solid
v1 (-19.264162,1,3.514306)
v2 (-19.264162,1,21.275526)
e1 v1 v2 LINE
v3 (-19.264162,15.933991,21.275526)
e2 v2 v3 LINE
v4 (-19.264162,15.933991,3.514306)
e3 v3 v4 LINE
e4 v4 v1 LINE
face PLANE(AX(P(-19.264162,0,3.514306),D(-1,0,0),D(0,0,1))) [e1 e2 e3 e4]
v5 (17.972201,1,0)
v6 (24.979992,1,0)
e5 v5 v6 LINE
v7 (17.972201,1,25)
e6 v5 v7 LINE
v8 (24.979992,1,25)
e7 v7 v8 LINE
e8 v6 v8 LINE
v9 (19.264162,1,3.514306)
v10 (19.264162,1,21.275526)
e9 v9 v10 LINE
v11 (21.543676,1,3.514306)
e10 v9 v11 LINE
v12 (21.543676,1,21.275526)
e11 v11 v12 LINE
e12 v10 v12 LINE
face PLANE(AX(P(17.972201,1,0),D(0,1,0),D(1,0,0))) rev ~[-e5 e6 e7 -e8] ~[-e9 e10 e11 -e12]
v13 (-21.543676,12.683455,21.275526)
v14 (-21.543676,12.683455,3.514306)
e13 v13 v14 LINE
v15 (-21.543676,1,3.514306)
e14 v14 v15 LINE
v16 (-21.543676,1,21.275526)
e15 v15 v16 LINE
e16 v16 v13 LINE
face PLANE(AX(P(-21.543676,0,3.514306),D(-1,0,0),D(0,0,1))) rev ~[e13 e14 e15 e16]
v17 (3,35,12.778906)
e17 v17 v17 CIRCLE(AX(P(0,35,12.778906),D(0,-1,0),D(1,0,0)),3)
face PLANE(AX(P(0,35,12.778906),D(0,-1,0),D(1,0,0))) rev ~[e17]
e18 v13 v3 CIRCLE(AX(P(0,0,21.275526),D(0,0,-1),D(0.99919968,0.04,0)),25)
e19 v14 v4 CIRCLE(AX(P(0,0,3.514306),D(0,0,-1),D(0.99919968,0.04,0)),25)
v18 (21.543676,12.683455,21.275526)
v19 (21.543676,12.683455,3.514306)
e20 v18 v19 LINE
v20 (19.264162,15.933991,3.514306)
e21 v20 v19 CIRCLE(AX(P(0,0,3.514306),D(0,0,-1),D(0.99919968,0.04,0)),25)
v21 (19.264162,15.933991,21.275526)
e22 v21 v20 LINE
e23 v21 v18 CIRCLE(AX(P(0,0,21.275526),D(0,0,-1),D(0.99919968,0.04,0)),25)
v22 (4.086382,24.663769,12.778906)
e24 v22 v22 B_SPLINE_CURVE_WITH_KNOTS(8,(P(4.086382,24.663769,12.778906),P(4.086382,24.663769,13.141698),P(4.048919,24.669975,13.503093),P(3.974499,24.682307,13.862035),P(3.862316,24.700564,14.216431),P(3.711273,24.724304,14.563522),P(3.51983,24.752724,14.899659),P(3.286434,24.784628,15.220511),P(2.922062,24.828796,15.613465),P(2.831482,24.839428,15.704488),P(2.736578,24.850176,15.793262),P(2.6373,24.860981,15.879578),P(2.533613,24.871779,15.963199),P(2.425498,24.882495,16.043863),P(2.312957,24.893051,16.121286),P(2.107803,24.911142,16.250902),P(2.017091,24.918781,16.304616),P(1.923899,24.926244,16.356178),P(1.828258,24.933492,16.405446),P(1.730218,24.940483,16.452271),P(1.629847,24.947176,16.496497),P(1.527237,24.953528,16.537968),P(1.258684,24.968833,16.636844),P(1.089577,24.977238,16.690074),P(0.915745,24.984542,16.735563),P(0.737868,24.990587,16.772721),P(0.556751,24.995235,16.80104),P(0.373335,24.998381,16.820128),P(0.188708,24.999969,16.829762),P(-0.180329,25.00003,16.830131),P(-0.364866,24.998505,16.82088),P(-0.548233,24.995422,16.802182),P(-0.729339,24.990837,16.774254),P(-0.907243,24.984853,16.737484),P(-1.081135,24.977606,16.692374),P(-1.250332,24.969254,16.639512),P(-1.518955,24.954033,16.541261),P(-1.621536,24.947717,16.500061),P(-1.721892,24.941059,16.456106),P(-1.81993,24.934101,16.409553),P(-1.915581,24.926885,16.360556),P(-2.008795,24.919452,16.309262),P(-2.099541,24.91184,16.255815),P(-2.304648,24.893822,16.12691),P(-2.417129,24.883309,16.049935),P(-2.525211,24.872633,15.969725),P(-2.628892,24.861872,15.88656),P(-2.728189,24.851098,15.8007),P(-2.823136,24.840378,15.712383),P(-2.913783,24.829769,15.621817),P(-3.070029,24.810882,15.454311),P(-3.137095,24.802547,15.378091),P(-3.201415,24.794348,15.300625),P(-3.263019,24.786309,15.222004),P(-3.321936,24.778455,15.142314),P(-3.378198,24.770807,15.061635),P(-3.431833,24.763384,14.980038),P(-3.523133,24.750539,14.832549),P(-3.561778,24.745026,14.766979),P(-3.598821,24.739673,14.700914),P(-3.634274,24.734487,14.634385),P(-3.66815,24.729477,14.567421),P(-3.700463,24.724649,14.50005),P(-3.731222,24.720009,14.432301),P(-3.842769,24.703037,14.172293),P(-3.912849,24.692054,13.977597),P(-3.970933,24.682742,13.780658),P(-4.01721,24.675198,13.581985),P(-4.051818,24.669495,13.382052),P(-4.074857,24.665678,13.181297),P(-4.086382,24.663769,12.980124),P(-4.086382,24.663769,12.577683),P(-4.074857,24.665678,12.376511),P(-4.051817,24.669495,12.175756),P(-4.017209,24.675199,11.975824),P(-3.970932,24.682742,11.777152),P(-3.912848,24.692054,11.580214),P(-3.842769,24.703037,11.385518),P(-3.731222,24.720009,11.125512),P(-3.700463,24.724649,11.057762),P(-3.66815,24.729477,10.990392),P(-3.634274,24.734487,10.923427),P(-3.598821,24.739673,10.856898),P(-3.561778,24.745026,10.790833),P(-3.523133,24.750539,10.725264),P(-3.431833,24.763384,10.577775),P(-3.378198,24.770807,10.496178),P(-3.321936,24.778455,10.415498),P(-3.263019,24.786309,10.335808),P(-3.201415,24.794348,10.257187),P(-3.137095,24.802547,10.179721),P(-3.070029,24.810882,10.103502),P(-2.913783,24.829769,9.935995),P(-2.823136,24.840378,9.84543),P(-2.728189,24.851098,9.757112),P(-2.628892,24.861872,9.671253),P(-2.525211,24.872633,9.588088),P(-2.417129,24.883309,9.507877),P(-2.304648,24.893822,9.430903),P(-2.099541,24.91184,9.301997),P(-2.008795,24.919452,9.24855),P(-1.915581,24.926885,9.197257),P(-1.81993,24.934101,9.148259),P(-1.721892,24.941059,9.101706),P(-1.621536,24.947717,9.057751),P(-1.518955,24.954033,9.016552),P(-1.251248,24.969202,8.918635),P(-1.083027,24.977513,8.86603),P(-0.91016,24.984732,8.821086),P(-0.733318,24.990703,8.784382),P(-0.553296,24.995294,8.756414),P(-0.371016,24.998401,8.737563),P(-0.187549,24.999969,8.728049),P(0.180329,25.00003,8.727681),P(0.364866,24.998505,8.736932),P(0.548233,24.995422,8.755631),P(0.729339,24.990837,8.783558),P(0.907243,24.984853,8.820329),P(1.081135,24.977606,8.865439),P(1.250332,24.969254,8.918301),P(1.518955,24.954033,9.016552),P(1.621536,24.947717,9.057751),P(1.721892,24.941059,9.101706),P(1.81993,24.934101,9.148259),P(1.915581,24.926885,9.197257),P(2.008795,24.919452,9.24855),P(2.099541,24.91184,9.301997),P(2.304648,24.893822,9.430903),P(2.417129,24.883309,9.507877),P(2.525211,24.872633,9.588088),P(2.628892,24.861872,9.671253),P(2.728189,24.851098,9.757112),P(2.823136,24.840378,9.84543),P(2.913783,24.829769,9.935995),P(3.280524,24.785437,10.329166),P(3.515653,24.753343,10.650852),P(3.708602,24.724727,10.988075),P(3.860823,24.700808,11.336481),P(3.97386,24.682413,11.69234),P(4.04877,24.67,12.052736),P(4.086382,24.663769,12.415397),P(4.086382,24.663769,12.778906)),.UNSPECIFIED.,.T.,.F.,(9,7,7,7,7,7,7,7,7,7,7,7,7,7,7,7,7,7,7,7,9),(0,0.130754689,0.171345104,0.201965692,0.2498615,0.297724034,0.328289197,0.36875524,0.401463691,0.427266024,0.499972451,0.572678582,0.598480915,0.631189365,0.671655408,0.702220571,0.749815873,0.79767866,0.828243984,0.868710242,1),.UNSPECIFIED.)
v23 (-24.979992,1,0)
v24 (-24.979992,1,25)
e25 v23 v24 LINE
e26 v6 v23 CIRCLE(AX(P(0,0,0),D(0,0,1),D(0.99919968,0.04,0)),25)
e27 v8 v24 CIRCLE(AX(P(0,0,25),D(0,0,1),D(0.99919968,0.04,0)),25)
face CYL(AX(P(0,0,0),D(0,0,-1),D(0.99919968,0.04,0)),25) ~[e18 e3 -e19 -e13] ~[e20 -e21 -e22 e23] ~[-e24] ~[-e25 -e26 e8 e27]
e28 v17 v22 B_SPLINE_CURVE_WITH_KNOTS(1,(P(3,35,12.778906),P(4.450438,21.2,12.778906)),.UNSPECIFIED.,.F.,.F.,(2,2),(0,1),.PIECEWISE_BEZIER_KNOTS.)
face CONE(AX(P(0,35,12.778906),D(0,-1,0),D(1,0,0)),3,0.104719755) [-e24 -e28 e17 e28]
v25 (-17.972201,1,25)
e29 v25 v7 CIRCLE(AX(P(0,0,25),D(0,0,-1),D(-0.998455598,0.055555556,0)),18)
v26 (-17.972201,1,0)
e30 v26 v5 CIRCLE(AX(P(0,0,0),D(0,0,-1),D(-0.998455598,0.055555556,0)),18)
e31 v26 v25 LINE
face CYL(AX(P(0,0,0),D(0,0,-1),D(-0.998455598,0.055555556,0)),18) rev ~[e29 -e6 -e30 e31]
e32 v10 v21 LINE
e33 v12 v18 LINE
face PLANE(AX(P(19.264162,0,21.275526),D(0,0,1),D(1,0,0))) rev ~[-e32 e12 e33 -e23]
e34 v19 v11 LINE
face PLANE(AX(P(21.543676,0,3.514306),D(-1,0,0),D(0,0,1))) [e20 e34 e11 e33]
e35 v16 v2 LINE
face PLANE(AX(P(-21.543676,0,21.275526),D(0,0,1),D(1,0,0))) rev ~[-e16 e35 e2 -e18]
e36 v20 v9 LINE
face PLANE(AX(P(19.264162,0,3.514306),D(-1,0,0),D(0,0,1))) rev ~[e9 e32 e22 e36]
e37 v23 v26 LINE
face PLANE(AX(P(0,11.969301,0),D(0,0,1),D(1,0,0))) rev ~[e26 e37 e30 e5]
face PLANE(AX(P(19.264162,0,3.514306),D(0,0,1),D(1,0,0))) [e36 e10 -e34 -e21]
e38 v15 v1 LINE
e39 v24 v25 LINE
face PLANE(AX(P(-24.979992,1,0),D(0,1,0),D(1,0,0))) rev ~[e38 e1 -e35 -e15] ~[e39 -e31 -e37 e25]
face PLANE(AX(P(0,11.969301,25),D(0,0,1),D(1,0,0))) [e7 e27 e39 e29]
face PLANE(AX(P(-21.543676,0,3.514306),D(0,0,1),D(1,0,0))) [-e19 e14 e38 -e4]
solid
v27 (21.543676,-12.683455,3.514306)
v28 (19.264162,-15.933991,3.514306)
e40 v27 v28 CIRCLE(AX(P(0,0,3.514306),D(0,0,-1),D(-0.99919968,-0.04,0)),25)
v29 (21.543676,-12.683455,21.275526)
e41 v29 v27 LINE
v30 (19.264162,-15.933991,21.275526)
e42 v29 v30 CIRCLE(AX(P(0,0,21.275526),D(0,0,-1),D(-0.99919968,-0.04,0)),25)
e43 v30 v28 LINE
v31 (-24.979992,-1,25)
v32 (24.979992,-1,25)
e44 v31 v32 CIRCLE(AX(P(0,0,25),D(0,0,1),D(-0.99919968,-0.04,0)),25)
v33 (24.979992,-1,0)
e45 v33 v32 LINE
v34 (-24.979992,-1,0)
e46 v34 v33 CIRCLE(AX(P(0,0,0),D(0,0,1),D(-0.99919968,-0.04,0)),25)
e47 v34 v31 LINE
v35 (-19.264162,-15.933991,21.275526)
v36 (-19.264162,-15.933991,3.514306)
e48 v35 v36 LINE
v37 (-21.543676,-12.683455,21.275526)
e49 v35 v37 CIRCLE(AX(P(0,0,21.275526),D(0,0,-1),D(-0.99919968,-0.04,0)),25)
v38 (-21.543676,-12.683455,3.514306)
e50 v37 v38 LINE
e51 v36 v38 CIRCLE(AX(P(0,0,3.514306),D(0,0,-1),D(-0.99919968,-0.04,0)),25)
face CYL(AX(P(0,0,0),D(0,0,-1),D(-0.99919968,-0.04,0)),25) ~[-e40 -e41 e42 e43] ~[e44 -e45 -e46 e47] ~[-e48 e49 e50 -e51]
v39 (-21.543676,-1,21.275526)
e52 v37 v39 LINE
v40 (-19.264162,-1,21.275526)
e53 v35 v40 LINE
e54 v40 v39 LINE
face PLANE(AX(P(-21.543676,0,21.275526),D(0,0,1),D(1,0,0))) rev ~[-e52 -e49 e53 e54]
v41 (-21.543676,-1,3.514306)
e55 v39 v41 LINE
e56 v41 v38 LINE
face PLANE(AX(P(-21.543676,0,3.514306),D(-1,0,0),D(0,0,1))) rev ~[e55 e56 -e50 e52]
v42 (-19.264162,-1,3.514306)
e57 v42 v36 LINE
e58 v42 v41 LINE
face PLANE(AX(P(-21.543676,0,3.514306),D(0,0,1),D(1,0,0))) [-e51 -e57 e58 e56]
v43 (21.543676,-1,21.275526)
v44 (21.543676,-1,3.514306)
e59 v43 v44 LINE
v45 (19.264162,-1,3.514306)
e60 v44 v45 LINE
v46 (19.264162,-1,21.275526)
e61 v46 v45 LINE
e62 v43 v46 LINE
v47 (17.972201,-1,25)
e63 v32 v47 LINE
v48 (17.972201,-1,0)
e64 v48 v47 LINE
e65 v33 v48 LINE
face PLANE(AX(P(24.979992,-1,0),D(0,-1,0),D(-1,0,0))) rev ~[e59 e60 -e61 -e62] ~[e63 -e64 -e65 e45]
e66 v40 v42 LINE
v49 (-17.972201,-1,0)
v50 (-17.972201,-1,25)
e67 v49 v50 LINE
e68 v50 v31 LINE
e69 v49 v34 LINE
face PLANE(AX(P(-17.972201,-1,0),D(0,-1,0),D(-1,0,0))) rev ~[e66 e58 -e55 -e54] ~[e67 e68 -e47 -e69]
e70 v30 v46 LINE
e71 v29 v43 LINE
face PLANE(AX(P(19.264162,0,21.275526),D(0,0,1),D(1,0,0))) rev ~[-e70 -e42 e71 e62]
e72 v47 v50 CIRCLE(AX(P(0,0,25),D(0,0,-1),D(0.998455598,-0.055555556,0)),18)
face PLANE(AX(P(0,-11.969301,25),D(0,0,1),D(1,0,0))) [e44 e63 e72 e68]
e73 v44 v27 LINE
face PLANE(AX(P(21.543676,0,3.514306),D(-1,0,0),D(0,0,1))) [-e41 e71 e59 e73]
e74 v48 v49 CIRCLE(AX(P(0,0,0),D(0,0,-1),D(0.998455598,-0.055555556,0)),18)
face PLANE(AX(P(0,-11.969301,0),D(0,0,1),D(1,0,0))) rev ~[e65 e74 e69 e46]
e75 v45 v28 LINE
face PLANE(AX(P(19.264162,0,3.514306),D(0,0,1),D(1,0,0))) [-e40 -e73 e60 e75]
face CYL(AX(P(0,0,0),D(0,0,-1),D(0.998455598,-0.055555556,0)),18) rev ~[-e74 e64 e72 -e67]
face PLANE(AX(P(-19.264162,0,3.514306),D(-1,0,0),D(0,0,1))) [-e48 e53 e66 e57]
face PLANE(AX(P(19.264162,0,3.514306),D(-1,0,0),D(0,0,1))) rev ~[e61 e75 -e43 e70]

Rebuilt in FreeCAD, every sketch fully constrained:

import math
import FreeCAD as App
import Part
import Sketcher
Q = App.Units.Quantity

doc = App.newDocument("Part")
params = doc.addObject("Spreadsheet::Sheet", "Params")
for row, (alias, value) in enumerate([
    ("sketch1_radius", "25 mm"),
    ("sketch1_radius2", "18 mm"),
    ("pad1_length", "25 mm"),
    ("sketch2_radius", "18 mm"),
    ("sketch2_radius2", "25 mm"),
    ("pad2_length", "25 mm"),
    ("pad3_length", "25 mm"),
    ("pad3_length2", "25 mm"),
    ("sketch4_diameter", "6 mm"),
    ("pad4_length", "13.8 mm"),
    ("pad4_taper", "6 deg"),
], start=1):
    params.set(f"A{row}", alias)
    params.set(f"B{row}", "=" + value)
    params.setAlias(f"B{row}", alias)

body = doc.addObject("PartDesign::Body", "Body")

sketch1 = doc.addObject("Sketcher::SketchObject", "Sketch")
body.addObject(sketch1)
sketch1.AttachmentSupport = (doc.XY_Plane, [""])
sketch1.MapMode = "FlatFace"
sketch1.addGeometry(Part.LineSegment(App.Vector(18, 1, 0), App.Vector(25, 1, 0)), False)
sketch1.addGeometry(Part.ArcOfCircle(Part.Circle(App.Vector(0, 0, 0), App.Vector(0, 0, 1), 25), math.radians(2), math.radians(178)), False)
sketch1.addGeometry(Part.LineSegment(App.Vector(-25, 1, 0), App.Vector(-18, 1, 0)), False)
sketch1.addGeometry(Part.ArcOfCircle(Part.Circle(App.Vector(0, 0, 0), App.Vector(0, 0, 1), 18), math.radians(3), math.radians(177)), False)
sketch1.addConstraint(Sketcher.Constraint("Coincident", 0, 2, 1, 1))
sketch1.addConstraint(Sketcher.Constraint("Coincident", 1, 2, 2, 1))
sketch1.addConstraint(Sketcher.Constraint("Coincident", 2, 2, 3, 2))
sketch1.addConstraint(Sketcher.Constraint("Coincident", 3, 1, 0, 1))
sketch1.addConstraint(Sketcher.Constraint("Horizontal", 0))
sketch1.addConstraint(Sketcher.Constraint("Horizontal", 2))
sketch1.addConstraint(Sketcher.Constraint("Coincident", 1, 3, -1, 1))
sketch1.addConstraint(Sketcher.Constraint("Coincident", 3, 3, -1, 1))
sketch1.addConstraint(Sketcher.Constraint("Horizontal", 0, 2, 1, 2))
sketch1.addConstraint(Sketcher.Constraint("Radius", 1, Q("25 mm")))
sketch1.addConstraint(Sketcher.Constraint("Radius", 3, Q("18 mm")))
sketch1.addConstraint(Sketcher.Constraint("DistanceY", -1, 1, 0, 2, Q("1 mm")))
sketch1.setExpression("Constraints[9]", "Params.sketch1_radius")
sketch1.setExpression("Constraints[10]", "Params.sketch1_radius2")
pad1 = doc.addObject("PartDesign::Pad", "Pad")
body.addObject(pad1)
pad1.Profile = sketch1
pad1.setExpression("Length", "Params.pad1_length")
body2 = doc.addObject("PartDesign::Body", "Body001")

sketch2 = doc.addObject("Sketcher::SketchObject", "Sketch001")
body2.addObject(sketch2)
sketch2.AttachmentSupport = (doc.getObject("XY_Plane001"), [""])
sketch2.MapMode = "FlatFace"
sketch2.addGeometry(Part.ArcOfCircle(Part.Circle(App.Vector(0, 0, 0), App.Vector(0, 0, 1), 18), math.radians(-177), math.radians(-3)), False)
sketch2.addGeometry(Part.LineSegment(App.Vector(-18, -1, 0), App.Vector(-25, -1, 0)), False)
sketch2.addGeometry(Part.ArcOfCircle(Part.Circle(App.Vector(0, 0, 0), App.Vector(0, 0, 1), 25), math.radians(-178), math.radians(-2)), False)
sketch2.addGeometry(Part.LineSegment(App.Vector(25, -1, 0), App.Vector(18, -1, 0)), False)
sketch2.addConstraint(Sketcher.Constraint("Coincident", 0, 1, 1, 1))
sketch2.addConstraint(Sketcher.Constraint("Coincident", 1, 2, 2, 1))
sketch2.addConstraint(Sketcher.Constraint("Coincident", 2, 2, 3, 1))
sketch2.addConstraint(Sketcher.Constraint("Coincident", 3, 2, 0, 2))
sketch2.addConstraint(Sketcher.Constraint("Horizontal", 1))
sketch2.addConstraint(Sketcher.Constraint("Horizontal", 3))
sketch2.addConstraint(Sketcher.Constraint("Coincident", 0, 3, -1, 1))
sketch2.addConstraint(Sketcher.Constraint("Coincident", 2, 3, -1, 1))
sketch2.addConstraint(Sketcher.Constraint("Horizontal", 1, 2, 2, 2))
sketch2.addConstraint(Sketcher.Constraint("Radius", 0, Q("18 mm")))
sketch2.addConstraint(Sketcher.Constraint("Radius", 2, Q("25 mm")))
sketch2.addConstraint(Sketcher.Constraint("DistanceY", 0, 1, -1, 1, Q("1 mm")))
sketch2.setExpression("Constraints[9]", "Params.sketch2_radius")
sketch2.setExpression("Constraints[10]", "Params.sketch2_radius2")
pad2 = doc.addObject("PartDesign::Pad", "Pad001")
body2.addObject(pad2)
pad2.Profile = sketch2
pad2.setExpression("Length", "Params.pad2_length")
body3 = doc.addObject("PartDesign::Body", "Body002")
body3.AllowCompound = True

sketch3 = doc.addObject("Sketcher::SketchObject", "Sketch002")
body3.addObject(sketch3)
sketch3.AttachmentSupport = (doc.getObject("XZ_Plane002"), [""])
sketch3.MapMode = "FlatFace"
sketch3.addGeometry(Part.LineSegment(App.Vector(19.3, 21.3, 0), App.Vector(19.3, 3.5, 0)), False)
sketch3.addGeometry(Part.LineSegment(App.Vector(19.3, 3.5, 0), App.Vector(21.5, 3.5, 0)), False)
sketch3.addGeometry(Part.LineSegment(App.Vector(21.5, 3.5, 0), App.Vector(21.5, 21.3, 0)), False)
sketch3.addGeometry(Part.LineSegment(App.Vector(21.5, 21.3, 0), App.Vector(19.3, 21.3, 0)), False)
sketch3.addGeometry(Part.LineSegment(App.Vector(-21.5, 21.3, 0), App.Vector(-21.5, 3.5, 0)), False)
sketch3.addGeometry(Part.LineSegment(App.Vector(-21.5, 3.5, 0), App.Vector(-19.3, 3.5, 0)), False)
sketch3.addGeometry(Part.LineSegment(App.Vector(-19.3, 3.5, 0), App.Vector(-19.3, 21.3, 0)), False)
sketch3.addGeometry(Part.LineSegment(App.Vector(-19.3, 21.3, 0), App.Vector(-21.5, 21.3, 0)), False)
sketch3.addConstraint(Sketcher.Constraint("Coincident", 0, 2, 1, 1))
sketch3.addConstraint(Sketcher.Constraint("Coincident", 1, 2, 2, 1))
sketch3.addConstraint(Sketcher.Constraint("Coincident", 2, 2, 3, 1))
sketch3.addConstraint(Sketcher.Constraint("Coincident", 3, 2, 0, 1))
sketch3.addConstraint(Sketcher.Constraint("Coincident", 4, 2, 5, 1))
sketch3.addConstraint(Sketcher.Constraint("Coincident", 5, 2, 6, 1))
sketch3.addConstraint(Sketcher.Constraint("Coincident", 6, 2, 7, 1))
sketch3.addConstraint(Sketcher.Constraint("Coincident", 7, 2, 4, 1))
sketch3.addConstraint(Sketcher.Constraint("Vertical", 0))
sketch3.addConstraint(Sketcher.Constraint("Horizontal", 1))
sketch3.addConstraint(Sketcher.Constraint("Vertical", 2))
sketch3.addConstraint(Sketcher.Constraint("Horizontal", 3))
sketch3.addConstraint(Sketcher.Constraint("Vertical", 4))
sketch3.addConstraint(Sketcher.Constraint("Horizontal", 5))
sketch3.addConstraint(Sketcher.Constraint("Vertical", 6))
sketch3.addConstraint(Sketcher.Constraint("Horizontal", 7))
sketch3.addConstraint(Sketcher.Constraint("Symmetric", 1, 2, 4, 2, -2))
sketch3.addConstraint(Sketcher.Constraint("Symmetric", 3, 2, 6, 2, -2))
sketch3.addConstraint(Sketcher.Constraint("DistanceY", 0, 2, 0, 1, Q("17.76122 mm")))
sketch3.addConstraint(Sketcher.Constraint("DistanceX", 1, 1, 1, 2, Q("2.279514 mm")))
sketch3.addConstraint(Sketcher.Constraint("DistanceX", -1, 1, 0, 2, Q("19.264162 mm")))
sketch3.addConstraint(Sketcher.Constraint("DistanceY", -1, 1, 0, 2, Q("3.514306 mm")))
pad3 = doc.addObject("PartDesign::Pad", "Pad002")
body3.addObject(pad3)
pad3.Profile = sketch3
pad3.Type = "TwoLengths"
pad3.setExpression("Length", "Params.pad3_length")
pad3.setExpression("Length2", "Params.pad3_length2")
pad3.Reversed = True
doc.recompute()

body4 = doc.addObject("PartDesign::Body", "Body003")
body4.BaseFeature = body3
boolean = doc.addObject("PartDesign::Boolean", "Boolean")
body.addObject(boolean)
boolean.Type = "Cut"
boolean.addObjects([body4])
doc.recompute()

sketch4 = doc.addObject("Sketcher::SketchObject", "Sketch003")
body.addObject(sketch4)
sketch4.AttachmentSupport = (doc.XZ_Plane, [""])
sketch4.MapMode = "FlatFace"
sketch4.AttachmentOffset = App.Placement(App.Vector(0, 0, -35), App.Rotation())
sketch4.addGeometry(Part.Circle(App.Vector(0, 12.8, 0), App.Vector(0, 0, 1), 3), False)
sketch4.addConstraint(Sketcher.Constraint("PointOnObject", 0, 3, -2))
sketch4.addConstraint(Sketcher.Constraint("Diameter", 0, Q("6 mm")))
sketch4.addConstraint(Sketcher.Constraint("DistanceY", -1, 1, 0, 3, Q("12.778906 mm")))
sketch4.setExpression("Constraints[1]", "Params.sketch4_diameter")
pad4 = doc.addObject("PartDesign::Pad", "Pad003")
body.addObject(pad4)
pad4.Profile = sketch4
pad4.setExpression("Length", "Params.pad4_length")
pad4.setExpression("TaperAngle", "Params.pad4_taper")
doc.recompute()

boolean2 = doc.addObject("PartDesign::Boolean", "Boolean001")
body2.addObject(boolean2)
boolean2.Type = "Cut"
boolean2.addObjects([body3])

doc.recompute()
